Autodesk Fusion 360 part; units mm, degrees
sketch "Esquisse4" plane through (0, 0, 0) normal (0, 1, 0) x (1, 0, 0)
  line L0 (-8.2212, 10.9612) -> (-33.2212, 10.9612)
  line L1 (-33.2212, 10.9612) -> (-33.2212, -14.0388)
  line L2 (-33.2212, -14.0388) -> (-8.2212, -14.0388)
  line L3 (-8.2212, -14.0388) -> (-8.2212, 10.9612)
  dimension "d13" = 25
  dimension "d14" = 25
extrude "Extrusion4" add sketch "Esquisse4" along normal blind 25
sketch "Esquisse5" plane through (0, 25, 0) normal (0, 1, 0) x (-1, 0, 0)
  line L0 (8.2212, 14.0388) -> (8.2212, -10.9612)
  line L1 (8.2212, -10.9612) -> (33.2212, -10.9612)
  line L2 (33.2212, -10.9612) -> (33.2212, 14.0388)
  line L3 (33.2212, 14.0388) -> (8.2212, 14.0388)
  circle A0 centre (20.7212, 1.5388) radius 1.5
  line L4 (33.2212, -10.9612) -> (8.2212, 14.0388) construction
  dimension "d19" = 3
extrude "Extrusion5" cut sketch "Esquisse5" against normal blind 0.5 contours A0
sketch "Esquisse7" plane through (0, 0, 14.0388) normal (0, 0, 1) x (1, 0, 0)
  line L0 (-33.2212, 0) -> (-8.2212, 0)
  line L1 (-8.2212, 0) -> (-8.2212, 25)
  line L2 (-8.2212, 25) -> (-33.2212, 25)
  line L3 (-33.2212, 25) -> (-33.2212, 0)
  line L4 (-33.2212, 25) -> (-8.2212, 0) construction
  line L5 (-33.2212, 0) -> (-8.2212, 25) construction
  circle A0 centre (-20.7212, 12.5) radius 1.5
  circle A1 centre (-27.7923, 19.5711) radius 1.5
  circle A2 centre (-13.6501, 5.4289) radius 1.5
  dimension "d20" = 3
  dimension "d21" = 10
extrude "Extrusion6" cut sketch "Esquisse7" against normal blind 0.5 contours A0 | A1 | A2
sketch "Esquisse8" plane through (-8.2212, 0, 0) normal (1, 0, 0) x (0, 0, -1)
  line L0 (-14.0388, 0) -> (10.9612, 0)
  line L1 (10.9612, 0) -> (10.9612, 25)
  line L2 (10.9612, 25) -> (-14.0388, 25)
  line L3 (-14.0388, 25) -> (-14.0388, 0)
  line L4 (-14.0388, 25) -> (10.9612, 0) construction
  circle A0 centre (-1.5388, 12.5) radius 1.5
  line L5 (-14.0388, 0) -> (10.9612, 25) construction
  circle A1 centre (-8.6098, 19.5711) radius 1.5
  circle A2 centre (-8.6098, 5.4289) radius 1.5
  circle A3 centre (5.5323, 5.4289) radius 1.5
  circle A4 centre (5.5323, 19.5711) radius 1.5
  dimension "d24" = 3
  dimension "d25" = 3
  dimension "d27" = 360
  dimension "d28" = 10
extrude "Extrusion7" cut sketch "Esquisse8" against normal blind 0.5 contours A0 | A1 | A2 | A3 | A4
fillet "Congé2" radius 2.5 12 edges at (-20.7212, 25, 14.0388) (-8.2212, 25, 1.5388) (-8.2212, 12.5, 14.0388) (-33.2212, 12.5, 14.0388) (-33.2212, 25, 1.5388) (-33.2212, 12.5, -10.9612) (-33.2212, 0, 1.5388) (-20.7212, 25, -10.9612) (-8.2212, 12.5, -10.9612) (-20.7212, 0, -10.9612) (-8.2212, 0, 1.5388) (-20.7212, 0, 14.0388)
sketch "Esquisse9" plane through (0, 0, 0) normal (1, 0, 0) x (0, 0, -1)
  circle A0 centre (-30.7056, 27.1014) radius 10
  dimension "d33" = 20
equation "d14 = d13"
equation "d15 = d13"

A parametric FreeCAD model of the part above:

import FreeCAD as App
import Part
import Sketcher

V = App.Vector


def edges_at(feature, points):
    """Names of the edges that pass closest to the given points."""
    edges = feature.Shape.Edges
    near = lambda p: min(range(len(edges)), key=lambda i: edges[i].distToShape(Part.Vertex(*p))[0])
    return sorted({f"Edge{near(p) + 1}" for p in points})

doc = App.newDocument("Part")
body = doc.addObject("PartDesign::Body", "Body")

sketch1 = body.newObject("Sketcher::SketchObject", "Sketch")
sketch1.AttachmentSupport = (doc.getObject("XZ_Plane"), [""])
sketch1.MapMode = "FlatFace"
sketch1.addGeometry(Part.LineSegment(V(-8, 14, 0), V(-8, -11, 0)), False)
sketch1.addGeometry(Part.LineSegment(V(-8, -11, 0), V(-33, -11, 0)), False)
sketch1.addGeometry(Part.LineSegment(V(-33, -11, 0), V(-33, 14, 0)), False)
sketch1.addGeometry(Part.LineSegment(V(-33, 14, 0), V(-8, 14, 0)), False)
sketch1.addConstraint(Sketcher.Constraint("Coincident", 0, 2, 1, 1))
sketch1.addConstraint(Sketcher.Constraint("Coincident", 1, 2, 2, 1))
sketch1.addConstraint(Sketcher.Constraint("Coincident", 2, 2, 3, 1))
sketch1.addConstraint(Sketcher.Constraint("Coincident", 3, 2, 0, 1))
sketch1.addConstraint(Sketcher.Constraint("Vertical", 0))
sketch1.addConstraint(Sketcher.Constraint("Horizontal", 1))
sketch1.addConstraint(Sketcher.Constraint("Vertical", 2))
sketch1.addConstraint(Sketcher.Constraint("Horizontal", 3))
sketch1.addConstraint(Sketcher.Constraint("Equal", 3, 0))
sketch1.addConstraint(Sketcher.Constraint("DistanceX", 1, 2, 1, 1, 25.0))
sketch1.addConstraint(Sketcher.Constraint("DistanceX", 0, 2, -1, 1, 8.2212))
sketch1.addConstraint(Sketcher.Constraint("DistanceY", 0, 2, -1, 1, 10.9612))
pad1 = body.newObject("PartDesign::Pad", "Pad")
pad1.Profile = sketch1
pad1.Length = 25
pad1.Reversed = True

sketch2 = body.newObject("Sketcher::SketchObject", "Sketch001")
sketch2.AttachmentSupport = (doc.getObject("XZ_Plane"), [""])
sketch2.MapMode = "FlatFace"
sketch2.AttachmentOffset = App.Placement(V(0, 0, -25), App.Rotation())
sketch2.addGeometry(Part.Circle(V(-20.7, 1.5, 0), V(0, 0, 1), 1.5), False)
sketch2.addConstraint(Sketcher.Constraint("Diameter", 0, 3.0))
sketch2.addConstraint(Sketcher.Constraint("DistanceX", 0, 3, -1, 1, 20.7212))
sketch2.addConstraint(Sketcher.Constraint("DistanceY", -1, 1, 0, 3, 1.5388))
pocket1 = body.newObject("PartDesign::Pocket", "Pocket")
pocket1.Profile = sketch2
pocket1.Length = 0.5
pocket1.Reversed = True

sketch3 = body.newObject("Sketcher::SketchObject", "Sketch002")
sketch3.AttachmentSupport = (doc.getObject("XY_Plane"), [""])
sketch3.MapMode = "FlatFace"
sketch3.AttachmentOffset = App.Placement(V(0, 0, 14.0388), App.Rotation())
sketch3.addGeometry(Part.Circle(V(-20.7, 12.5, 0), V(0, 0, 1), 1.5), False)
sketch3.addGeometry(Part.Circle(V(-27.8, 19.6, 0), V(0, 0, 1), 1.5), False)
sketch3.addGeometry(Part.Circle(V(-13.7, 5.4, 0), V(0, 0, 1), 1.5), False)
sketch3.addConstraint(Sketcher.Constraint("Equal", 0, 1))
sketch3.addConstraint(Sketcher.Constraint("Equal", 1, 2))
sketch3.addConstraint(Sketcher.Constraint("Diameter", 0, 3.0))
sketch3.addConstraint(Sketcher.Constraint("DistanceY", -1, 1, 0, 3, 12.5))
sketch3.addConstraint(Sketcher.Constraint("DistanceX", 2, 3, -1, 1, 13.65))
sketch3.addConstraint(Sketcher.Constraint("DistanceY", -1, 1, 1, 3, 19.571))
sketch3.addConstraint(Sketcher.Constraint("DistanceY", -1, 1, 2, 3, 5.429))
sketch3.addConstraint(Sketcher.Constraint("DistanceX", 1, 3, 0, 3, 7.071))
sketch3.addConstraint(Sketcher.Constraint("DistanceX", 0, 3, 2, 3, 7.071))
pocket2 = body.newObject("PartDesign::Pocket", "Pocket001")
pocket2.Profile = sketch3
pocket2.Length = 0.5

sketch4 = body.newObject("Sketcher::SketchObject", "Sketch003")
sketch4.AttachmentSupport = (doc.getObject("YZ_Plane"), [""])
sketch4.MapMode = "FlatFace"
sketch4.AttachmentOffset = App.Placement(V(0, 0, -8.2212), App.Rotation())
sketch4.addGeometry(Part.Circle(V(12.5, 1.5, 0), V(0, 0, 1), 1.5), False)
sketch4.addGeometry(Part.Circle(V(19.6, 8.6, 0), V(0, 0, 1), 1.5), False)
sketch4.addGeometry(Part.Circle(V(5.4, 8.6, 0), V(0, 0, 1), 1.5), False)
sketch4.addGeometry(Part.Circle(V(5.4, -5.5, 0), V(0, 0, 1), 1.5), False)
sketch4.addGeometry(Part.Circle(V(19.6, -5.5, 0), V(0, 0, 1), 1.5), False)
sketch4.addConstraint(Sketcher.Constraint("Equal", 0, 1))
sketch4.addConstraint(Sketcher.Constraint("Equal", 1, 2))
sketch4.addConstraint(Sketcher.Constraint("Equal", 2, 3))
sketch4.addConstraint(Sketcher.Constraint("Equal", 3, 4))
sketch4.addConstraint(Sketcher.Constraint("Horizontal", 1, 3, 2, 3))
sketch4.addConstraint(Sketcher.Constraint("Horizontal", 3, 3, 4, 3))
sketch4.addConstraint(Sketcher.Constraint("Vertical", 2, 3, 3, 3))
sketch4.addConstraint(Sketcher.Constraint("Vertical", 1, 3, 4, 3))
sketch4.addConstraint(Sketcher.Constraint("Diameter", 0, 3.0))
sketch4.addConstraint(Sketcher.Constraint("DistanceX", -1, 1, 0, 3, 12.5))
sketch4.addConstraint(Sketcher.Constraint("DistanceX", -1, 1, 1, 3, 19.571))
sketch4.addConstraint(Sketcher.Constraint("DistanceX", -1, 1, 2, 3, 5.429))
sketch4.addConstraint(Sketcher.Constraint("DistanceY", 0, 3, 1, 3, 7.071))
sketch4.addConstraint(Sketcher.Constraint("DistanceY", 3, 3, 0, 3, 7.071))
sketch4.addConstraint(Sketcher.Constraint("DistanceY", -1, 1, 0, 3, 1.5388))
pocket3 = body.newObject("PartDesign::Pocket", "Pocket002")
pocket3.Profile = sketch4
pocket3.Length = 0.5
doc.recompute()

fillet = body.newObject("PartDesign::Fillet", "Fillet")
fillet.Base = (pocket3, edges_at(pocket3, [
    (-20.721, 25, 14.039),
    (-8.221, 25, 1.539),
    (-8.221, 12.5, 14.039),
    (-33.221, 12.5, 14.039),
    (-33.221, 25, 1.539),
    (-33.221, 12.5, -10.961),
    (-33.221, 0, 1.539),
    (-20.721, 25, -10.961),
    (-8.221, 12.5, -10.961),
    (-20.721, 0, -10.961),
    (-8.221, 0, 1.539),
    (-20.721, 0, 14.039),
]))
fillet.Radius = 2.5

doc.recompute()
